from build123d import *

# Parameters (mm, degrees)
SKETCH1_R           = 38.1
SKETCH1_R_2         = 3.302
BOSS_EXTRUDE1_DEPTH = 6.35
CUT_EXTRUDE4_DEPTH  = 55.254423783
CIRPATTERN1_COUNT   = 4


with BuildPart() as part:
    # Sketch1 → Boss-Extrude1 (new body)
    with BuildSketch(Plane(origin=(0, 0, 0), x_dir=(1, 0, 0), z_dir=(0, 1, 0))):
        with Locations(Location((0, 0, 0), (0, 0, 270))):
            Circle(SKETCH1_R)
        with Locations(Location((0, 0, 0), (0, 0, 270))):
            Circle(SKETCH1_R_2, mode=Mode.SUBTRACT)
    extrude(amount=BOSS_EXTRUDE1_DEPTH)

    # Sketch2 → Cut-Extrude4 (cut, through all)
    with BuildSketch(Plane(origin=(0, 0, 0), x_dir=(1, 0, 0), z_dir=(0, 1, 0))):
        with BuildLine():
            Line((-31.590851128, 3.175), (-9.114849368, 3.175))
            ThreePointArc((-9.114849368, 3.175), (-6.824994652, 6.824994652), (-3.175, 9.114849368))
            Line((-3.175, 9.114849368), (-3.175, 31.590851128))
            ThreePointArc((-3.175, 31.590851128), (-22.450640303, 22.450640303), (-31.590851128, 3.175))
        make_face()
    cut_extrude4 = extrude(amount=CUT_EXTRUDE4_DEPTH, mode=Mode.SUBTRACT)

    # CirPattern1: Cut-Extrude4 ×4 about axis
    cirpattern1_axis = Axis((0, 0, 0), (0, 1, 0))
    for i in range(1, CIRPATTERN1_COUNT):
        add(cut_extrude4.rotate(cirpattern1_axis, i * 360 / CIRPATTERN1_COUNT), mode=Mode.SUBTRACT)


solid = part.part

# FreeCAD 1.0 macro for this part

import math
import FreeCAD as App
import Part
import Sketcher

V = App.Vector
Q = App.Units.Quantity

doc = App.newDocument("Part")
params = doc.addObject("Spreadsheet::Sheet", "Params")
for row, (alias, value) in enumerate([
    ("sketch1_diameter", "3 in"),
    ("sketch1_diameter2", "0.26 in"),
    ("pad1_length", "0.25 in"),
    ("sketch2_radius", "0.38 in"),
    ("sketch2_radius2", "1.25 in"),
], start=1):
    params.set(f"A{row}", alias)
    params.set(f"B{row}", "=" + value)
    params.setAlias(f"B{row}", alias)

body = doc.addObject("PartDesign::Body", "Body")

# Sketch on XZ plane
sketch1 = body.newObject("Sketcher::SketchObject", "Sketch")
sketch1.AttachmentSupport = (doc.getObject("XZ_Plane"), [""])
sketch1.MapMode = "FlatFace"
sketch1.addGeometry([
    Part.Circle(V(0, 0, 0), V(0, 0, 1), 38.1),
    Part.Circle(V(0, 0, 0), V(0, 0, 1), 3.3),
], False)
sketch1.addConstraint([
    Sketcher.Constraint("Coincident", 0, 3, -1, 1),
    Sketcher.Constraint("Coincident", 1, 3, -1, 1),
    Sketcher.Constraint("Diameter", 0, Q("3 in")),
    Sketcher.Constraint("Diameter", 1, Q("0.26 in")),
])
sketch1.setExpression("Constraints[2]", "Params.sketch1_diameter")
sketch1.setExpression("Constraints[3]", "Params.sketch1_diameter2")
pad1 = body.newObject("PartDesign::Pad", "Pad")
pad1.Profile = sketch1
pad1.setExpression("Length", "Params.pad1_length")
pad1.Reversed = True

# Sketch on XZ plane
sketch2 = body.newObject("Sketcher::SketchObject", "Sketch001")
sketch2.AttachmentSupport = (doc.getObject("XZ_Plane"), [""])
sketch2.MapMode = "FlatFace"
sketch2.addGeometry([
    Part.LineSegment(V(-32, -3, 0), V(-9, -3, 0)),
    Part.ArcOfCircle(Part.Circle(V(0, 0, 0), V(0, 0, 1), 10), math.radians(-161), math.radians(-109)),
    Part.LineSegment(V(-3, -9, 0), V(-3, -32, 0)),
    Part.ArcOfCircle(Part.Circle(V(0, 0, 0), V(0, 0, 1), 32), math.radians(-174), math.radians(-96)),
], False)
sketch2.addConstraint([
    Sketcher.Constraint("Coincident", 0, 2, 1, 1),
    Sketcher.Constraint("Coincident", 1, 2, 2, 1),
    Sketcher.Constraint("Coincident", 2, 2, 3, 2),
    Sketcher.Constraint("Coincident", 3, 1, 0, 1),
    Sketcher.Constraint("Horizontal", 0),
    Sketcher.Constraint("Vertical", 2),
    Sketcher.Constraint("Coincident", 1, 3, -1, 1),
    Sketcher.Constraint("Coincident", 3, 3, -1, 1),
    Sketcher.Constraint("Equal", 0, 2),
    Sketcher.Constraint("Radius", 1, Q("0.38 in")),
    Sketcher.Constraint("Radius", 3, Q("1.25 in")),
    Sketcher.Constraint("DistanceY", 0, 2, -1, 1, Q("0.125 in")),
])
sketch2.setExpression("Constraints[9]", "Params.sketch2_radius")
sketch2.setExpression("Constraints[10]", "Params.sketch2_radius2")
pocket1 = body.newObject("PartDesign::Pocket", "Pocket")
pocket1.Profile = sketch2
pocket1.Type = "ThroughAll"
doc.recompute()

polarpattern = body.newObject("PartDesign::PolarPattern", "PolarPattern")
polarpattern.Originals = [pocket1]
polarpattern.Axis = (doc.getObject("Y_Axis"), [""])
polarpattern.Angle = 360
polarpattern.Occurrences = 4
body.Tip = polarpattern

doc.recompute()
